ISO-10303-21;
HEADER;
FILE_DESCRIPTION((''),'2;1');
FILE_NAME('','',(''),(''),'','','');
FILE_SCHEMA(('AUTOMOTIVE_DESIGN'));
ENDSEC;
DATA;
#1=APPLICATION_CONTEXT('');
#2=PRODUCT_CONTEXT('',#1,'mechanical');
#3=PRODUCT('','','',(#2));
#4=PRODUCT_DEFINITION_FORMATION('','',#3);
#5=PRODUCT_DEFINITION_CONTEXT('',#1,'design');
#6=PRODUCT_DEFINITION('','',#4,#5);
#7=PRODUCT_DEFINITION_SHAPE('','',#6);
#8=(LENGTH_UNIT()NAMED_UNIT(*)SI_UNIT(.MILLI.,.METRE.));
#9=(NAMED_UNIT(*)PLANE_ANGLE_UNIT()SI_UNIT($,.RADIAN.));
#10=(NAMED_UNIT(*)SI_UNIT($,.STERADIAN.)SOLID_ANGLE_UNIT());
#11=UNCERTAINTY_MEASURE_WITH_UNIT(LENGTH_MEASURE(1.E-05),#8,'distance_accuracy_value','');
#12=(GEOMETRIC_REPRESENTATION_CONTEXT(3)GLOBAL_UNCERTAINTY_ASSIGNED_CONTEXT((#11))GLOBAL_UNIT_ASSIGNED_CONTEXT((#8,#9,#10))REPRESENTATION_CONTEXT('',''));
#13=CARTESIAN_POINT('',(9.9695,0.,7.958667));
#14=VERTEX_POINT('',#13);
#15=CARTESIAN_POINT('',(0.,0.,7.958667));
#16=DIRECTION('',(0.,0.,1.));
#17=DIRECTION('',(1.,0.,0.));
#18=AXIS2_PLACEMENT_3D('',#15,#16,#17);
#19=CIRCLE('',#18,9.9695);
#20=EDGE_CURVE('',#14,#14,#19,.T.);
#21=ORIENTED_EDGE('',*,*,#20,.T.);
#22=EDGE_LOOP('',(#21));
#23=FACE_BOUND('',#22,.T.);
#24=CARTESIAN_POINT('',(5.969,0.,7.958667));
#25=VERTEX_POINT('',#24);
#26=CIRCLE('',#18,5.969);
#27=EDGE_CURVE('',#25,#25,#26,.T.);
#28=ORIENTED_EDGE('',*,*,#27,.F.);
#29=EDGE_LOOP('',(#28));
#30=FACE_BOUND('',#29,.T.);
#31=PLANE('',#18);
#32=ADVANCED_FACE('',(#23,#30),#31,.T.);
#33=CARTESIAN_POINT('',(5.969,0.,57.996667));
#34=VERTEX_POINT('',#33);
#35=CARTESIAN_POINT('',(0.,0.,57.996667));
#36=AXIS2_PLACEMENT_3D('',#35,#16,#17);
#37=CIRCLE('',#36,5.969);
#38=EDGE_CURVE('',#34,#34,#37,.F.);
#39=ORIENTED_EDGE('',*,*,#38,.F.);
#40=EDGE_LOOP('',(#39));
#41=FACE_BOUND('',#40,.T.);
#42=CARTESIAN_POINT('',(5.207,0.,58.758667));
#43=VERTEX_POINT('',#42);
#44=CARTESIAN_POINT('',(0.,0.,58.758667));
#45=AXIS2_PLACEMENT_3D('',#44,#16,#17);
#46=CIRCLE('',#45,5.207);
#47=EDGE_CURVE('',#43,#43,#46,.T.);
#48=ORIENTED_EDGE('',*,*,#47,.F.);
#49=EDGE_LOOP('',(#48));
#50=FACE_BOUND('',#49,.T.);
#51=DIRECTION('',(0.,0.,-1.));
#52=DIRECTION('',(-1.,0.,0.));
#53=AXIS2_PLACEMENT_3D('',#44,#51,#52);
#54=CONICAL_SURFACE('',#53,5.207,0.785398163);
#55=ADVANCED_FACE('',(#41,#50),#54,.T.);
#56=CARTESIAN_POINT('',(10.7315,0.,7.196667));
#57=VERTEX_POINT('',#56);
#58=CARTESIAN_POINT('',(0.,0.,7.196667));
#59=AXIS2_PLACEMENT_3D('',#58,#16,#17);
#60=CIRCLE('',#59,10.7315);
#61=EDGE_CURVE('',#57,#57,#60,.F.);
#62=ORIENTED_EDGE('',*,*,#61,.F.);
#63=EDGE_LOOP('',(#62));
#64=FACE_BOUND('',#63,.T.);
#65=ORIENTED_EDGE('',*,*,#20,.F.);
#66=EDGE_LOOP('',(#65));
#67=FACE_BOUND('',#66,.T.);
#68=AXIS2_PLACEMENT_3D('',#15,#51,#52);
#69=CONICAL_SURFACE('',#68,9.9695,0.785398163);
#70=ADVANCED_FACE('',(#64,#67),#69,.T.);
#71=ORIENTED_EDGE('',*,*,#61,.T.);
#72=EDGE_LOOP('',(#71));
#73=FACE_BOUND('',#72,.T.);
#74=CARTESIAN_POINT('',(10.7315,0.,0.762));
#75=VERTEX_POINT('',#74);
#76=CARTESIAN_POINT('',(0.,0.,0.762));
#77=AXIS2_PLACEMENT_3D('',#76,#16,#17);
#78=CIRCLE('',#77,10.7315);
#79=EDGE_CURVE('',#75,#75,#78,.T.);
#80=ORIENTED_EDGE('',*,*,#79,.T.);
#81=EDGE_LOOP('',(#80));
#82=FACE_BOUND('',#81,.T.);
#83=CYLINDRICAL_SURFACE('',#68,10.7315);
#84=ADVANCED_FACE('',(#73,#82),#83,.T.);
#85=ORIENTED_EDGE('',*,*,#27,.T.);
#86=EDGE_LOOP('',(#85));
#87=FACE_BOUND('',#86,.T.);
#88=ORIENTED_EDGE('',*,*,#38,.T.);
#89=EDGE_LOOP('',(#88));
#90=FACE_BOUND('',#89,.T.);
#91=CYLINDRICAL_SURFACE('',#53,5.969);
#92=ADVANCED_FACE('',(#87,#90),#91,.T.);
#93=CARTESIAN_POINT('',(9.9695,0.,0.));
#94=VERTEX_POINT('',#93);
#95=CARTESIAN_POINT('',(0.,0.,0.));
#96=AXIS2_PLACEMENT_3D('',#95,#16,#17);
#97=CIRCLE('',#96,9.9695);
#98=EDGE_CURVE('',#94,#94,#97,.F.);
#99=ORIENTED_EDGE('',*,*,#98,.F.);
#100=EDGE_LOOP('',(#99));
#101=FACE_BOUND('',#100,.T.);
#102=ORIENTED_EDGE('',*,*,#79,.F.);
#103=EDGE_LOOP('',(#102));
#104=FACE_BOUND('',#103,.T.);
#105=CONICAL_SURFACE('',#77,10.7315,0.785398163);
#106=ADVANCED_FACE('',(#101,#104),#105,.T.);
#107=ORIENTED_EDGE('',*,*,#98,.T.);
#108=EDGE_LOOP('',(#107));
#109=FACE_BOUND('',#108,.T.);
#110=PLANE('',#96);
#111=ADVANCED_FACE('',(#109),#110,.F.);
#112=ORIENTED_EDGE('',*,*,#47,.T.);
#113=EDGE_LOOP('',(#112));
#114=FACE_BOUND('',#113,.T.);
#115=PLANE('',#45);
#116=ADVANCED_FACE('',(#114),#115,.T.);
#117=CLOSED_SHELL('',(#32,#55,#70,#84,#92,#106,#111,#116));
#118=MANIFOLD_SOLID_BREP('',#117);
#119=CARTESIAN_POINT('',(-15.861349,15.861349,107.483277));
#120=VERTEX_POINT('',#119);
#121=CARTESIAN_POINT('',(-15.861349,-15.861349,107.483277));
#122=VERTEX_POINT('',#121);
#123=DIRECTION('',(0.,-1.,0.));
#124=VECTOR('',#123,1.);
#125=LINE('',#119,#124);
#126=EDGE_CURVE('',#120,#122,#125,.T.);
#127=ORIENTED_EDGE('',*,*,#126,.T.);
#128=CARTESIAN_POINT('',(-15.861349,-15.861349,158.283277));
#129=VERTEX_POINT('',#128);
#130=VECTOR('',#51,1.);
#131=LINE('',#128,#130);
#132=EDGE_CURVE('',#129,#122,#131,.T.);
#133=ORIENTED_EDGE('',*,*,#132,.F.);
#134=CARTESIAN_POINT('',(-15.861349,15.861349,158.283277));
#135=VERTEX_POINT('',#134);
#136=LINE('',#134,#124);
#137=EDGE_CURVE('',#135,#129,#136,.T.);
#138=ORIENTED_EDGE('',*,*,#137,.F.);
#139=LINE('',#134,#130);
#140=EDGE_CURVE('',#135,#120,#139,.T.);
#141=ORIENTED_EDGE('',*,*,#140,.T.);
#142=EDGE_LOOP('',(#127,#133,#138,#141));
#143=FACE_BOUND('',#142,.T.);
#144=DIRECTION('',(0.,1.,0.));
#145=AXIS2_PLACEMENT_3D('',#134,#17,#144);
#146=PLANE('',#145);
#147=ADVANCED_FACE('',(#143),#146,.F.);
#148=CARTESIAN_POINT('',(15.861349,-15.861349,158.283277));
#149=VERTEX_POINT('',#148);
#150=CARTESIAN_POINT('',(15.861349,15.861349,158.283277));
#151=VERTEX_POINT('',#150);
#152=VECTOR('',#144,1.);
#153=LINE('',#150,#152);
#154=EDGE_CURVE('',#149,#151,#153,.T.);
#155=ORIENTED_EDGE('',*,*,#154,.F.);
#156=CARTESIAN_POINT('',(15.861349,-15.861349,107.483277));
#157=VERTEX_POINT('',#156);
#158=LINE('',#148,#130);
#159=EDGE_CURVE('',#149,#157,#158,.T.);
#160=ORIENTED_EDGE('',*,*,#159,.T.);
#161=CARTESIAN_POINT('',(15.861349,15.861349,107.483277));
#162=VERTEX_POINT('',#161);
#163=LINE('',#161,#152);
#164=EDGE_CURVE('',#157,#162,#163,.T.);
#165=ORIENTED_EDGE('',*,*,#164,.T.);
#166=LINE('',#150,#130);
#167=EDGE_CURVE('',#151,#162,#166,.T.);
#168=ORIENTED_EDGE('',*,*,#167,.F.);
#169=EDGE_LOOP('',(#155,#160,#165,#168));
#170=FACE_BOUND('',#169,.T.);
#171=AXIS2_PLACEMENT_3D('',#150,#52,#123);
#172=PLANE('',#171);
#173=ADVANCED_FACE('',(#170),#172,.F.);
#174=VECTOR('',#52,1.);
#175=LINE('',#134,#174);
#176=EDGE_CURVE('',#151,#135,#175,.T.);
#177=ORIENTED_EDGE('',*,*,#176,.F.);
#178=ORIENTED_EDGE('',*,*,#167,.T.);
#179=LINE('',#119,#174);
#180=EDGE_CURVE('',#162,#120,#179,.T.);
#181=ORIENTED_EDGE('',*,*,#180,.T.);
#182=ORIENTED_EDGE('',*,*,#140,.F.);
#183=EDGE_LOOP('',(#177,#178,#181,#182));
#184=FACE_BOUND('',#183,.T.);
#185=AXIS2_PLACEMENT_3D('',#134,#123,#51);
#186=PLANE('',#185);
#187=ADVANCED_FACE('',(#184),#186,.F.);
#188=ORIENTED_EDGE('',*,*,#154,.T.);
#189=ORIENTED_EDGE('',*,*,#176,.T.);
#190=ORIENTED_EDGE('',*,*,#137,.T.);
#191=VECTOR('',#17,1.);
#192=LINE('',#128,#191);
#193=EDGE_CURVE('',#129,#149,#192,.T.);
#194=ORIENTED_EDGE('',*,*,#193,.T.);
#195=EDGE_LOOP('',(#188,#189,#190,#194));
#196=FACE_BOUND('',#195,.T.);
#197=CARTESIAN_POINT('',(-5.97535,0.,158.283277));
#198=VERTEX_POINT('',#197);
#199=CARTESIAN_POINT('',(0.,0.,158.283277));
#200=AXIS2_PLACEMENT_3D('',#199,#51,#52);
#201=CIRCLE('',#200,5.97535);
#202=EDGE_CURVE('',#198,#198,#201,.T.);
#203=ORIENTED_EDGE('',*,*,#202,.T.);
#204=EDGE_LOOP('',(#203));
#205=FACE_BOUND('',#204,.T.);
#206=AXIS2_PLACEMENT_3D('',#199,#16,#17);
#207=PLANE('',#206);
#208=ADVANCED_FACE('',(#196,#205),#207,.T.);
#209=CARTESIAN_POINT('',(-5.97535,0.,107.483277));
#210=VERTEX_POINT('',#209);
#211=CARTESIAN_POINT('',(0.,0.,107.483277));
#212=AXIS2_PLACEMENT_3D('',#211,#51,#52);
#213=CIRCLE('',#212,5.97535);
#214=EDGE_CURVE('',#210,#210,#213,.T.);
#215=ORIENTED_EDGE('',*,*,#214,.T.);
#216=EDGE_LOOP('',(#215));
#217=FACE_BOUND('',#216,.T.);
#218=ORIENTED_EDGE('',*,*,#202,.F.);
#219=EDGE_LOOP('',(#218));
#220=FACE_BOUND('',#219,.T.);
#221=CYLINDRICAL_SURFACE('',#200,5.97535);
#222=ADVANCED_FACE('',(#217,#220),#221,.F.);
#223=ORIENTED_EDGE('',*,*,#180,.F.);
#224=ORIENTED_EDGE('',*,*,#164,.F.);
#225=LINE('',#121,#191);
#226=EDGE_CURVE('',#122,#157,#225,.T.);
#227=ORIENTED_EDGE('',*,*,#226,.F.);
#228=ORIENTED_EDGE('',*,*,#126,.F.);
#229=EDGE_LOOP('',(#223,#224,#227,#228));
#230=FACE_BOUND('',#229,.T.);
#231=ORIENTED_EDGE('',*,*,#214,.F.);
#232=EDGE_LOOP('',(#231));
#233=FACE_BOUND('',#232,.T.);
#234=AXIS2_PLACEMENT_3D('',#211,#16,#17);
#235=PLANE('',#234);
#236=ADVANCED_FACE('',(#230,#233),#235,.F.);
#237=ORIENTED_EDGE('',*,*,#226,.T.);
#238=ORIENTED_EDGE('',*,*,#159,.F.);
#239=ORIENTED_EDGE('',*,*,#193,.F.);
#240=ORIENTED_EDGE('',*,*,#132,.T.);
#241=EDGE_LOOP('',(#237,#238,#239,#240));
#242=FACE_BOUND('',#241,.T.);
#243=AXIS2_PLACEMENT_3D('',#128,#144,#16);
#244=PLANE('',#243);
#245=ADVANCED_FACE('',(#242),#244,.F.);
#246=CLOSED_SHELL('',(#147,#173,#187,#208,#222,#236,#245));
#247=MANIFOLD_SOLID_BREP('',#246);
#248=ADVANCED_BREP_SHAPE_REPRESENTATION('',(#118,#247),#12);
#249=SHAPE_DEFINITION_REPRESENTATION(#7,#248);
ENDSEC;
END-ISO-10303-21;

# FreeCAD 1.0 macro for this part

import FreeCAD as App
import Part
import Sketcher

V = App.Vector
Q = App.Units.Quantity


def edges_at(feature, points):
    """Names of the edges that pass closest to the given points."""
    edges = feature.Shape.Edges
    near = lambda p: min(range(len(edges)), key=lambda i: edges[i].distToShape(Part.Vertex(*p))[0])
    return sorted({f"Edge{near(p) + 1}" for p in points})

doc = App.newDocument("Part")
body = doc.addObject("PartDesign::Body", "Body")

# Sketch on XY plane
sketch1 = body.newObject("Sketcher::SketchObject", "Sketch")
sketch1.AttachmentSupport = (doc.getObject("XY_Plane"), [""])
sketch1.MapMode = "FlatFace"
sketch1.addGeometry(Part.Circle(V(0, 0, 0), V(0, 0, 1), 11), False)
sketch1.addConstraint([
    Sketcher.Constraint("Coincident", 0, 3, -1, 1),
    Sketcher.Constraint("Diameter", 0, Q("0.845 in")),
])
pad1 = body.newObject("PartDesign::Pad", "Pad")
pad1.Profile = sketch1
pad1.Length = 7.958667

# Sketch on XY plane
sketch2 = body.newObject("Sketcher::SketchObject", "Sketch001")
sketch2.AttachmentSupport = (doc.getObject("XY_Plane"), [""])
sketch2.MapMode = "FlatFace"
sketch2.AttachmentOffset = App.Placement(V(0, 0, 7.958667), App.Rotation())
sketch2.addGeometry(Part.Circle(V(0, 0, 0), V(0, 0, 1), 6), False)
sketch2.addConstraint([
    Sketcher.Constraint("Coincident", 0, 3, -1, 1),
    Sketcher.Constraint("Diameter", 0, Q("0.47 in")),
])
pad2 = body.newObject("PartDesign::Pad", "Pad001")
pad2.Profile = sketch2
pad2.Length = Q("2 in")
doc.recompute()

chamfer = body.newObject("PartDesign::Chamfer", "Chamfer")
chamfer.Base = (pad2, edges_at(pad2, [(-10.732, 0, 0), (-10.732, 0, 7.959), (-5.969, 0, 58.759)]))
chamfer.Size = Q("0.03 in")
body2 = doc.addObject("PartDesign::Body", "Body001")

# Sketch on XY plane
sketch3 = body2.newObject("Sketcher::SketchObject", "Sketch002")
sketch3.AttachmentSupport = (doc.getObject("XY_Plane001"), [""])
sketch3.MapMode = "FlatFace"
sketch3.AttachmentOffset = App.Placement(V(0, 0, 107.483277), App.Rotation())
sketch3.addGeometry([
    Part.LineSegment(V(-16, 16, 0), V(-16, -16, 0)),
    Part.LineSegment(V(-16, -16, 0), V(16, -16, 0)),
    Part.LineSegment(V(16, -16, 0), V(16, 16, 0)),
    Part.LineSegment(V(16, 16, 0), V(-16, 16, 0)),
], False)
sketch3.addConstraint([
    Sketcher.Constraint("Coincident", 0, 2, 1, 1),
    Sketcher.Constraint("Coincident", 1, 2, 2, 1),
    Sketcher.Constraint("Coincident", 2, 2, 3, 1),
    Sketcher.Constraint("Coincident", 3, 2, 0, 1),
    Sketcher.Constraint("Vertical", 0),
    Sketcher.Constraint("Horizontal", 1),
    Sketcher.Constraint("Vertical", 2),
    Sketcher.Constraint("Horizontal", 3),
    Sketcher.Constraint("Symmetric", 0, 2, 2, 2, -1, 1),
    Sketcher.Constraint("Equal", 3, 0),
    Sketcher.Constraint("DistanceX", 1, 1, 1, 2, Q("31.722698 mm")),
])
pad3 = body2.newObject("PartDesign::Pad", "Pad002")
pad3.Profile = sketch3
pad3.Length = Q("2 in")

# Sketch on XY plane
sketch4 = body2.newObject("Sketcher::SketchObject", "Sketch003")
sketch4.AttachmentSupport = (doc.getObject("XY_Plane001"), [""])
sketch4.MapMode = "FlatFace"
sketch4.AttachmentOffset = App.Placement(V(0, 0, 107.483277), App.Rotation())
sketch4.addGeometry(Part.Circle(V(0, 0, 0), V(0, 0, 1), 6), False)
sketch4.addConstraint([
    Sketcher.Constraint("Coincident", 0, 3, -1, 1),
    Sketcher.Constraint("Diameter", 0, Q("0.4705 in")),
])
pocket1 = body2.newObject("PartDesign::Pocket", "Pocket")
pocket1.Profile = sketch4
pocket1.Type = "ThroughAll"
pocket1.Reversed = True

doc.recompute()
